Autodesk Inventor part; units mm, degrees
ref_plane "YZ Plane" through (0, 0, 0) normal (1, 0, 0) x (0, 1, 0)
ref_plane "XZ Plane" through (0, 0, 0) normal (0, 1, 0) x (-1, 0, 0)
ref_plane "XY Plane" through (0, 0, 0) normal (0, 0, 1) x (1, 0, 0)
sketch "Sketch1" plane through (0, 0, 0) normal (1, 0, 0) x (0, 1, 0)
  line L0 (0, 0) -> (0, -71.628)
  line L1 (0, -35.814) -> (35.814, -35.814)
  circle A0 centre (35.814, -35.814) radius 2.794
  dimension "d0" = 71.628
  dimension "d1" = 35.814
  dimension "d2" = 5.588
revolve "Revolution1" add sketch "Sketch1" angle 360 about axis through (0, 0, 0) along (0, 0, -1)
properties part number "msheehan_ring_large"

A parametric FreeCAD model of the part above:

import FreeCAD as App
import Part
import Sketcher

V = App.Vector
Q = App.Units.Quantity

doc = App.newDocument("Part")
params = doc.addObject("Spreadsheet::Sheet", "Params")
for row, (alias, value) in enumerate([
    ("sketch1_diameter", "0.22 in"),
    ("revolution_angle", "360 deg"),
], start=1):
    params.set(f"A{row}", alias)
    params.set(f"B{row}", "=" + value)
    params.setAlias(f"B{row}", alias)

body = doc.addObject("PartDesign::Body", "Body")

# Sketch on YZ plane
sketch1 = body.newObject("Sketcher::SketchObject", "Sketch")
sketch1.AttachmentSupport = (doc.getObject("YZ_Plane"), [""])
sketch1.MapMode = "FlatFace"
sketch1.addGeometry(Part.Circle(V(35.8, -35.8, 0), V(0, 0, 1), 2.8), False)
sketch1.addConstraint([
    Sketcher.Constraint("Diameter", 0, Q("0.22 in")),
    Sketcher.Constraint("DistanceX", -1, 1, 0, 3, Q("1.41 in")),
    Sketcher.Constraint("DistanceY", 0, 3, -1, 1, Q("1.41 in")),
])
sketch1.setExpression("Constraints[0]", "Params.sketch1_diameter")
revolution = body.newObject("PartDesign::Revolution", "Revolution")
revolution.Profile = sketch1
revolution.ReferenceAxis = (sketch1, ["V_Axis"])
revolution.setExpression("Angle", "Params.revolution_angle")

doc.recompute()
